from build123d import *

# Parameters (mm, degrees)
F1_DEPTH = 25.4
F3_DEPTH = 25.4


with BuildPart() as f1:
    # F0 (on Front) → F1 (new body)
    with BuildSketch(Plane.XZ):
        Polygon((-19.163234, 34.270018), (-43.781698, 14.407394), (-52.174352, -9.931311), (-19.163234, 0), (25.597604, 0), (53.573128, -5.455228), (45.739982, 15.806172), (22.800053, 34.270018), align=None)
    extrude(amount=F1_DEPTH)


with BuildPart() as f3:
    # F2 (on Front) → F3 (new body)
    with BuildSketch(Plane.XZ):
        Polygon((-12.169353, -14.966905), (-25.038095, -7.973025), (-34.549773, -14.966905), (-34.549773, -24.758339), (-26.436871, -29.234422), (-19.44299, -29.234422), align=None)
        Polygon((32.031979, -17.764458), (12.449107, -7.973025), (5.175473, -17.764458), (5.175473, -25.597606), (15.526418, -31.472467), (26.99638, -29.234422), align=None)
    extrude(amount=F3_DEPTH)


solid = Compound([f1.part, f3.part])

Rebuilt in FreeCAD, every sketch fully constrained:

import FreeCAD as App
import Part
import Sketcher

V = App.Vector
Q = App.Units.Quantity

doc = App.newDocument("Part")
body = doc.addObject("PartDesign::Body", "Body")

sketch1 = body.newObject("Sketcher::SketchObject", "Sketch")
sketch1.AttachmentSupport = (doc.getObject("XZ_Plane"), [""])
sketch1.MapMode = "FlatFace"
sketch1.addGeometry([
    Part.LineSegment(V(-19, 34, 0), V(-44, 14, 0)),
    Part.LineSegment(V(-44, 14, 0), V(-52, -10, 0)),
    Part.LineSegment(V(-52, -10, 0), V(-19, 0, 0)),
    Part.LineSegment(V(-19, 0, 0), V(26, 0, 0)),
    Part.LineSegment(V(26, 0, 0), V(54, -5, 0)),
    Part.LineSegment(V(54, -5, 0), V(46, 16, 0)),
    Part.LineSegment(V(46, 16, 0), V(23, 34, 0)),
    Part.LineSegment(V(23, 34, 0), V(-19, 34, 0)),
], False)
sketch1.addConstraint([
    Sketcher.Constraint("Coincident", 0, 2, 1, 1),
    Sketcher.Constraint("Coincident", 1, 2, 2, 1),
    Sketcher.Constraint("Coincident", 2, 2, 3, 1),
    Sketcher.Constraint("Coincident", 3, 2, 4, 1),
    Sketcher.Constraint("Coincident", 4, 2, 5, 1),
    Sketcher.Constraint("Coincident", 5, 2, 6, 1),
    Sketcher.Constraint("Coincident", 6, 2, 7, 1),
    Sketcher.Constraint("Coincident", 7, 2, 0, 1),
    Sketcher.Constraint("Horizontal", 3),
    Sketcher.Constraint("Horizontal", 7),
    Sketcher.Constraint("PointOnObject", 2, 2, -1),
    Sketcher.Constraint("Vertical", 2, 2, 7, 2),
    Sketcher.Constraint("DistanceX", 0, 2, 3, 2, 69.379302),
    Sketcher.Constraint("DistanceY", 4, 2, 5, 2, 21.2614),
    Sketcher.Constraint("Distance", 1, 25.745081),
    Sketcher.Constraint("Distance", 2, 34.472668),
    Sketcher.Constraint("Distance", 5, 22.658449),
    Sketcher.Constraint("DistanceX", 3, 1, 3, 2, 44.760838),
    Sketcher.Constraint("DistanceX", 7, 2, 7, 1, 41.963287),
    Sketcher.Constraint("DistanceY", 1, 2, -1, 1, 9.931311),
    Sketcher.Constraint("DistanceX", -1, 1, 5, 2, 45.739982),
    Sketcher.Constraint("DistanceX", 2, 2, 4, 2, 72.736362),
    Sketcher.Constraint("DistanceY", 0, 2, 5, 2, 1.398778),
    Sketcher.Constraint("DistanceY", 1, 2, 7, 2, 44.201329),
])
pad1 = body.newObject("PartDesign::Pad", "Pad")
pad1.Profile = sketch1
pad1.Length = Q("1 in")
body2 = doc.addObject("PartDesign::Body", "Body001")
body2.AllowCompound = True

sketch2 = body2.newObject("Sketcher::SketchObject", "Sketch001")
sketch2.AttachmentSupport = (doc.getObject("XZ_Plane001"), [""])
sketch2.MapMode = "FlatFace"
sketch2.addGeometry([
    Part.LineSegment(V(-12, -15, 0), V(-25, -8, 0)),
    Part.LineSegment(V(-25, -8, 0), V(-35, -15, 0)),
    Part.LineSegment(V(-35, -15, 0), V(-35, -25, 0)),
    Part.LineSegment(V(-35, -25, 0), V(-26, -29, 0)),
    Part.LineSegment(V(-26, -29, 0), V(-19, -29, 0)),
    Part.LineSegment(V(-19, -29, 0), V(-12, -15, 0)),
    Part.LineSegment(V(32, -18, 0), V(12, -8, 0)),
    Part.LineSegment(V(12, -8, 0), V(5, -18, 0)),
    Part.LineSegment(V(5, -18, 0), V(5, -26, 0)),
    Part.LineSegment(V(5, -26, 0), V(16, -31, 0)),
    Part.LineSegment(V(16, -31, 0), V(27, -29, 0)),
    Part.LineSegment(V(27, -29, 0), V(32, -18, 0)),
], False)
sketch2.addConstraint([
    Sketcher.Constraint("Coincident", 0, 2, 1, 1),
    Sketcher.Constraint("Coincident", 1, 2, 2, 1),
    Sketcher.Constraint("Coincident", 2, 2, 3, 1),
    Sketcher.Constraint("Coincident", 3, 2, 4, 1),
    Sketcher.Constraint("Coincident", 4, 2, 5, 1),
    Sketcher.Constraint("Coincident", 5, 2, 0, 1),
    Sketcher.Constraint("Coincident", 6, 2, 7, 1),
    Sketcher.Constraint("Coincident", 7, 2, 8, 1),
    Sketcher.Constraint("Coincident", 8, 2, 9, 1),
    Sketcher.Constraint("Coincident", 9, 2, 10, 1),
    Sketcher.Constraint("Coincident", 10, 2, 11, 1),
    Sketcher.Constraint("Coincident", 11, 2, 6, 1),
    Sketcher.Constraint("Vertical", 2),
    Sketcher.Constraint("Horizontal", 4),
    Sketcher.Constraint("Vertical", 8),
    Sketcher.Constraint("Horizontal", 1, 2, 5, 2),
    Sketcher.Constraint("Horizontal", 0, 2, 6, 2),
    Sketcher.Constraint("Horizontal", 4, 2, 10, 2),
    Sketcher.Constraint("Horizontal", 7, 2, 11, 2),
    Sketcher.Constraint("Distance", 1, 11.806201),
    Sketcher.Constraint("DistanceX", 4, 1, 4, 2, 6.993881),
    Sketcher.Constraint("DistanceX", 0, 2, 6, 2, 37.487202),
    Sketcher.Constraint("DistanceY", 8, 2, 5, 2, 10.630701),
    Sketcher.Constraint("DistanceX", 10, 2, 11, 2, 5.035599),
    Sketcher.Constraint("Distance", 3, 9.26577),
    Sketcher.Constraint("Distance", 10, 11.686269),
    Sketcher.Constraint("DistanceY", 2, 2, 2, 1, 9.791434),
    Sketcher.Constraint("DistanceY", 8, 2, 8, 1, 7.833148),
    Sketcher.Constraint("DistanceY", 2, 2, -1, 1, 24.758339),
    Sketcher.Constraint("DistanceX", 3, 2, -1, 1, 26.436871),
    Sketcher.Constraint("DistanceY", 3, 2, -1, 1, 29.234422),
    Sketcher.Constraint("DistanceX", -1, 1, 10, 2, 26.99638),
    Sketcher.Constraint("DistanceX", 1, 2, 0, 2, 9.511678),
    Sketcher.Constraint("DistanceX", 0, 2, 5, 2, 12.868742),
    Sketcher.Constraint("DistanceY", 9, 2, 8, 2, 5.874861),
    Sketcher.Constraint("Distance", 7, 12.197455),
])
pad2 = body2.newObject("PartDesign::Pad", "Pad001")
pad2.Profile = sketch2
pad2.Length = Q("1 in")

doc.recompute()
